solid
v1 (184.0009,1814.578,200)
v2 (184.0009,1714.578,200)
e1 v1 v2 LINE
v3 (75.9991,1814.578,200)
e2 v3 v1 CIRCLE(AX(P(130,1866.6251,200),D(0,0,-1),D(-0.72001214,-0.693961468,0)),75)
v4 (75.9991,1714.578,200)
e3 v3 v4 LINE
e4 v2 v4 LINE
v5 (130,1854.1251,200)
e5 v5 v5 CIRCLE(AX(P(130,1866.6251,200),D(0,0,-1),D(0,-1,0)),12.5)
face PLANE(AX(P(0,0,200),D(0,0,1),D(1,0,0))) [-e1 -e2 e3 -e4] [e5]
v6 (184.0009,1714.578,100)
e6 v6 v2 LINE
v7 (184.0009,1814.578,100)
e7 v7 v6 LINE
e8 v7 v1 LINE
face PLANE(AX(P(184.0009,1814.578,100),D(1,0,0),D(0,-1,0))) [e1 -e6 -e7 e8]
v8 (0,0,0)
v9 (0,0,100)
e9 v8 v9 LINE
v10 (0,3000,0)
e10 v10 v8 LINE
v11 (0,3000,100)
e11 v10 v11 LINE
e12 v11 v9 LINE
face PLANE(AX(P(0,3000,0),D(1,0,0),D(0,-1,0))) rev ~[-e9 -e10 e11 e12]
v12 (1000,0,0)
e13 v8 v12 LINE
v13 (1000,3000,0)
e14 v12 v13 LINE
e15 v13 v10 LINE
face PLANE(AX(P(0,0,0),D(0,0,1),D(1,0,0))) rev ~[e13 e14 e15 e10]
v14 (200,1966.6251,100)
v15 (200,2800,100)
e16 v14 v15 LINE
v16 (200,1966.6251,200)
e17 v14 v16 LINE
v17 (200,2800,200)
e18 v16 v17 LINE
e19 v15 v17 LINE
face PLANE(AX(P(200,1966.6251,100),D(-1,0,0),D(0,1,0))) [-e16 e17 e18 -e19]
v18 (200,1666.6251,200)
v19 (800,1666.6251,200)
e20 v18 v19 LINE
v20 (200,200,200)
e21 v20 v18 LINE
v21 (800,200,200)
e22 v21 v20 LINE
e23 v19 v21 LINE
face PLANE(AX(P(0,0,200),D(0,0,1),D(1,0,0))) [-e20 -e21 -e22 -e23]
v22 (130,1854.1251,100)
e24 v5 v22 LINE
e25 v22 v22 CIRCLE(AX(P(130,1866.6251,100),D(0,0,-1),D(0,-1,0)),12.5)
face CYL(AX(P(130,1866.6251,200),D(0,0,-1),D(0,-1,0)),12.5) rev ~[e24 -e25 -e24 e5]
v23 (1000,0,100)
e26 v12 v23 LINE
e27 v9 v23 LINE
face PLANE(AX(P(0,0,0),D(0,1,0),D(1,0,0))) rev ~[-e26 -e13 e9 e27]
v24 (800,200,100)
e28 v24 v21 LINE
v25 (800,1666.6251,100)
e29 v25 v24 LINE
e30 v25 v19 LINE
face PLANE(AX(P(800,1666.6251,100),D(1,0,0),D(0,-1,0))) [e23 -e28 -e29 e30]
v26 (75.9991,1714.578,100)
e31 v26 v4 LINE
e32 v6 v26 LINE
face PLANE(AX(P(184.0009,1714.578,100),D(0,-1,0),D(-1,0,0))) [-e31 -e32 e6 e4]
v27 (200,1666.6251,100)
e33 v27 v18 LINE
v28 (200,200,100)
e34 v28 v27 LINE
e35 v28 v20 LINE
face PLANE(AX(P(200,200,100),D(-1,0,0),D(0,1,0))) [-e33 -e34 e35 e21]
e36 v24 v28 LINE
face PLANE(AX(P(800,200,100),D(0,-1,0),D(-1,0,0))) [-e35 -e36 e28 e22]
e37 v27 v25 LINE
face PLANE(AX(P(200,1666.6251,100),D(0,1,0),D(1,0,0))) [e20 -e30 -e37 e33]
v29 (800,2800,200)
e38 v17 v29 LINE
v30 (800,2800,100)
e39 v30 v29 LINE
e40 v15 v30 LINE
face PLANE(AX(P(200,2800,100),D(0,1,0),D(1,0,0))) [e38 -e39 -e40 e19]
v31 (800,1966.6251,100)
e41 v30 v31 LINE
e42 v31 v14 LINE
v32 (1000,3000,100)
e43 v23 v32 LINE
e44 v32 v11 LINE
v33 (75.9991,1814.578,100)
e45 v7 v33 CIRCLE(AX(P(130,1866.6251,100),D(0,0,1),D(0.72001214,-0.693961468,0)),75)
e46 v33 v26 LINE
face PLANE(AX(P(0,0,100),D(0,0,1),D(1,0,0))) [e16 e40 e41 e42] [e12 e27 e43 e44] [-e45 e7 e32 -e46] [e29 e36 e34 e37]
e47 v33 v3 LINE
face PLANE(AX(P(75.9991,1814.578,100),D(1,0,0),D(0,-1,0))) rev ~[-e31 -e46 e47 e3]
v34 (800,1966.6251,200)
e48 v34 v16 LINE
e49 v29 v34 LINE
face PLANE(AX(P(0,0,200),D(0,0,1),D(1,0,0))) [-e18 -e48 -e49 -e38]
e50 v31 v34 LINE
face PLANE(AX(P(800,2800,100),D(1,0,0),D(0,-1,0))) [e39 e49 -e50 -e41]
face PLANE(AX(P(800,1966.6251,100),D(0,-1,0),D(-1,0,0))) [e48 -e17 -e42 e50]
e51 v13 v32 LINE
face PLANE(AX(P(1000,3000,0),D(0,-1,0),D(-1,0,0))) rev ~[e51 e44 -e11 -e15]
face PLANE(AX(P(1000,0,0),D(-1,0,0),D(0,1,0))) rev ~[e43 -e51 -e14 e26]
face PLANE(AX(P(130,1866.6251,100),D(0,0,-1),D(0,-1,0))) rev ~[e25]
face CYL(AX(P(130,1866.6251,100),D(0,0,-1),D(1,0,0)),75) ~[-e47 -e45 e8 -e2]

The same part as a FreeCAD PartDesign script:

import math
import FreeCAD as App
import Part
import Sketcher


def add_polygon(sketch, points):
    """Adds a closed chain of lines whose ends are joined by coincident constraints."""
    first, n = sketch.GeometryCount, len(points)
    for a, b in zip(points, points[1:] + points[:1]):
        sketch.addGeometry(Part.LineSegment(App.Vector(*a, 0), App.Vector(*b, 0)), False)
    for i in range(n):
        sketch.addConstraint(Sketcher.Constraint("Coincident", first + i, 2, first + (i + 1) % n, 1))

doc = App.newDocument("Part")
body = doc.addObject("PartDesign::Body", "Body")

# Sketch on XY plane
sketch1 = body.newObject("Sketcher::SketchObject", "Sketch")
sketch1.AttachmentSupport = (doc.getObject("XY_Plane"), [""])
sketch1.MapMode = "FlatFace"
add_polygon(sketch1, [(0, 3000), (0, 0), (1000, 0), (1000, 3000)])  # lines 0-3
sketch1.addConstraint([
    Sketcher.Constraint("Vertical", 0),
    Sketcher.Constraint("Horizontal", 1),
    Sketcher.Constraint("Vertical", 2),
    Sketcher.Constraint("Horizontal", 3),
    Sketcher.Constraint("Coincident", 0, 2, -1, 1),
    Sketcher.Constraint("DistanceX", 1, 1, 1, 2, 1000.0),
    Sketcher.Constraint("DistanceY", 0, 2, 0, 1, 3000.0),
])
pad1 = body.newObject("PartDesign::Pad", "Pad")
pad1.Profile = sketch1
pad1.Length = 100

# Sketch on XY plane
sketch2 = body.newObject("Sketcher::SketchObject", "Sketch001")
sketch2.AttachmentSupport = (doc.getObject("XY_Plane"), [""])
sketch2.MapMode = "FlatFace"
sketch2.AttachmentOffset = App.Placement(App.Vector(0, 0, 100), App.Rotation())
add_polygon(sketch2, [(800, 2800), (200, 2800), (200, 1966.6251), (800, 1966.6251)])  # lines 0-3
add_polygon(sketch2, [(800, 1666.6251), (200, 1666.6251), (200, 200), (800, 200)])  # lines 4-7
sketch2.addConstraint([
    Sketcher.Constraint("Horizontal", 0),
    Sketcher.Constraint("Vertical", 1),
    Sketcher.Constraint("Horizontal", 2),
    Sketcher.Constraint("Vertical", 3),
    Sketcher.Constraint("Horizontal", 4),
    Sketcher.Constraint("Vertical", 5),
    Sketcher.Constraint("Horizontal", 6),
    Sketcher.Constraint("Vertical", 7),
    Sketcher.Constraint("Vertical", 1, 2, 4, 2),
    Sketcher.Constraint("Vertical", 3, 2, 6, 2),
    Sketcher.Constraint("DistanceX", -1, 1, 0, 2, 200.0),
    Sketcher.Constraint("DistanceY", -1, 1, 5, 2, 200.0),
    Sketcher.Constraint("DistanceY", 4, 2, 1, 2, 300.0),
    Sketcher.Constraint("DistanceX", 0, 2, 0, 1, 600.0),
    Sketcher.Constraint("DistanceY", -1, 1, 0, 2, 2800.0),
    Sketcher.Constraint("DistanceY", 1, 2, 1, 1, 833.375),
])
pad2 = body.newObject("PartDesign::Pad", "Pad001")
pad2.Profile = sketch2
pad2.Length = 100

# Sketch on XY plane
sketch3 = body.newObject("Sketcher::SketchObject", "Sketch002")
sketch3.AttachmentSupport = (doc.getObject("XY_Plane"), [""])
sketch3.MapMode = "FlatFace"
sketch3.AttachmentOffset = App.Placement(App.Vector(0, 0, 100), App.Rotation())
sketch3.addGeometry([
    Part.ArcOfCircle(Part.Circle(App.Vector(130, 1866.6251, 0), App.Vector(0, 0, 1), 75), math.radians(-43.944517), math.radians(223.944517)),
    Part.LineSegment(App.Vector(75.9991, 1814.578, 0), App.Vector(75.9991, 1714.578, 0)),
    Part.LineSegment(App.Vector(75.9991, 1714.578, 0), App.Vector(184.0009, 1714.578, 0)),
    Part.LineSegment(App.Vector(184.0009, 1714.578, 0), App.Vector(184.0009, 1814.578, 0)),
], False)
sketch3.addConstraint([
    Sketcher.Constraint("Coincident", 0, 2, 1, 1),
    Sketcher.Constraint("Coincident", 1, 2, 2, 1),
    Sketcher.Constraint("Coincident", 2, 2, 3, 1),
    Sketcher.Constraint("Coincident", 3, 2, 0, 1),
    Sketcher.Constraint("Vertical", 1),
    Sketcher.Constraint("Horizontal", 2),
    Sketcher.Constraint("Vertical", 3),
    Sketcher.Constraint("Horizontal", 0, 2, 3, 2),
    Sketcher.Constraint("Radius", 0, 75.0),
    Sketcher.Constraint("DistanceY", 1, 2, 1, 1, 100.0),
    Sketcher.Constraint("DistanceX", -1, 1, 0, 3, 130.0),
    Sketcher.Constraint("DistanceX", 2, 1, 2, 2, 108.0018),
    Sketcher.Constraint("DistanceY", -1, 1, 0, 3, 1866.625),
])
pad3 = body.newObject("PartDesign::Pad", "Pad002")
pad3.Profile = sketch3
pad3.Length = 100

# Sketch on XY plane
sketch4 = body.newObject("Sketcher::SketchObject", "Sketch003")
sketch4.AttachmentSupport = (doc.getObject("XY_Plane"), [""])
sketch4.MapMode = "FlatFace"
sketch4.AttachmentOffset = App.Placement(App.Vector(0, 0, 200), App.Rotation())
sketch4.addGeometry(Part.Circle(App.Vector(130, 1866.6251, 0), App.Vector(0, 0, 1), 12.5), False)
sketch4.addConstraint([
    Sketcher.Constraint("Diameter", 0, 25.0),
    Sketcher.Constraint("DistanceX", -1, 1, 0, 3, 130.0),
    Sketcher.Constraint("DistanceY", -1, 1, 0, 3, 1866.625),
])
doc.recompute()
hole = body.newObject("PartDesign::Hole", "Hole")
hole.Profile = sketch4
hole.ThreadType = "None"
hole.Diameter = 25
hole.DepthType = "Dimension"
hole.Depth = 100
hole.DrillPoint = "Flat"

doc.recompute()
